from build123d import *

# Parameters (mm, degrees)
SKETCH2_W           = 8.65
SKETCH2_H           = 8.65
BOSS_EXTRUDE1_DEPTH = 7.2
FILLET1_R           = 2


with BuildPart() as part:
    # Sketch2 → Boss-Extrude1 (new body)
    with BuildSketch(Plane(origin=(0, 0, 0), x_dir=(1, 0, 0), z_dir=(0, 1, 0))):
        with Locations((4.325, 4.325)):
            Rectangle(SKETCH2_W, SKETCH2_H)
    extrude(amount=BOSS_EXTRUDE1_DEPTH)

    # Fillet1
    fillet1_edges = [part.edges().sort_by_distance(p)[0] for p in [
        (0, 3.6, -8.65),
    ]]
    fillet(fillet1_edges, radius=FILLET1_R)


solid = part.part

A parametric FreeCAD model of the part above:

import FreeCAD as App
import Part
import Sketcher

V = App.Vector
Q = App.Units.Quantity


def edges_at(feature, points):
    """Names of the edges that pass closest to the given points."""
    edges = feature.Shape.Edges
    near = lambda p: min(range(len(edges)), key=lambda i: edges[i].distToShape(Part.Vertex(*p))[0])
    return sorted({f"Edge{near(p) + 1}" for p in points})

doc = App.newDocument("Part")
params = doc.addObject("Spreadsheet::Sheet", "Params")
for row, (alias, value) in enumerate([
    ("sketch1_width", "8.65 mm"),
    ("pad1_length", "7.2 mm"),
    ("fillet_radius", "2 mm"),
], start=1):
    params.set(f"A{row}", alias)
    params.set(f"B{row}", "=" + value)
    params.setAlias(f"B{row}", alias)

body = doc.addObject("PartDesign::Body", "Body")

sketch1 = body.newObject("Sketcher::SketchObject", "Sketch")
sketch1.AttachmentSupport = (doc.getObject("XZ_Plane"), [""])
sketch1.MapMode = "FlatFace"
sketch1.addGeometry(Part.LineSegment(V(0, -9, 0), V(0, 0, 0)), False)
sketch1.addGeometry(Part.LineSegment(V(0, 0, 0), V(9, 0, 0)), False)
sketch1.addGeometry(Part.LineSegment(V(9, 0, 0), V(9, -9, 0)), False)
sketch1.addGeometry(Part.LineSegment(V(9, -9, 0), V(0, -9, 0)), False)
sketch1.addConstraint(Sketcher.Constraint("Coincident", 0, 2, 1, 1))
sketch1.addConstraint(Sketcher.Constraint("Coincident", 1, 2, 2, 1))
sketch1.addConstraint(Sketcher.Constraint("Coincident", 2, 2, 3, 1))
sketch1.addConstraint(Sketcher.Constraint("Coincident", 3, 2, 0, 1))
sketch1.addConstraint(Sketcher.Constraint("Vertical", 0))
sketch1.addConstraint(Sketcher.Constraint("Horizontal", 1))
sketch1.addConstraint(Sketcher.Constraint("Vertical", 2))
sketch1.addConstraint(Sketcher.Constraint("Horizontal", 3))
sketch1.addConstraint(Sketcher.Constraint("Coincident", 0, 2, -1, 1))
sketch1.addConstraint(Sketcher.Constraint("Equal", 3, 0))
sketch1.addConstraint(Sketcher.Constraint("DistanceX", 1, 1, 1, 2, Q("8.65 mm")))
sketch1.setExpression("Constraints[10]", "Params.sketch1_width")
pad1 = body.newObject("PartDesign::Pad", "Pad")
pad1.Profile = sketch1
pad1.setExpression("Length", "Params.pad1_length")
pad1.Reversed = True
doc.recompute()

fillet = body.newObject("PartDesign::Fillet", "Fillet")
fillet.Base = (pad1, edges_at(pad1, [(0, 3.6, -8.65)]))
fillet.setExpression("Radius", "Params.fillet_radius")

doc.recompute()
